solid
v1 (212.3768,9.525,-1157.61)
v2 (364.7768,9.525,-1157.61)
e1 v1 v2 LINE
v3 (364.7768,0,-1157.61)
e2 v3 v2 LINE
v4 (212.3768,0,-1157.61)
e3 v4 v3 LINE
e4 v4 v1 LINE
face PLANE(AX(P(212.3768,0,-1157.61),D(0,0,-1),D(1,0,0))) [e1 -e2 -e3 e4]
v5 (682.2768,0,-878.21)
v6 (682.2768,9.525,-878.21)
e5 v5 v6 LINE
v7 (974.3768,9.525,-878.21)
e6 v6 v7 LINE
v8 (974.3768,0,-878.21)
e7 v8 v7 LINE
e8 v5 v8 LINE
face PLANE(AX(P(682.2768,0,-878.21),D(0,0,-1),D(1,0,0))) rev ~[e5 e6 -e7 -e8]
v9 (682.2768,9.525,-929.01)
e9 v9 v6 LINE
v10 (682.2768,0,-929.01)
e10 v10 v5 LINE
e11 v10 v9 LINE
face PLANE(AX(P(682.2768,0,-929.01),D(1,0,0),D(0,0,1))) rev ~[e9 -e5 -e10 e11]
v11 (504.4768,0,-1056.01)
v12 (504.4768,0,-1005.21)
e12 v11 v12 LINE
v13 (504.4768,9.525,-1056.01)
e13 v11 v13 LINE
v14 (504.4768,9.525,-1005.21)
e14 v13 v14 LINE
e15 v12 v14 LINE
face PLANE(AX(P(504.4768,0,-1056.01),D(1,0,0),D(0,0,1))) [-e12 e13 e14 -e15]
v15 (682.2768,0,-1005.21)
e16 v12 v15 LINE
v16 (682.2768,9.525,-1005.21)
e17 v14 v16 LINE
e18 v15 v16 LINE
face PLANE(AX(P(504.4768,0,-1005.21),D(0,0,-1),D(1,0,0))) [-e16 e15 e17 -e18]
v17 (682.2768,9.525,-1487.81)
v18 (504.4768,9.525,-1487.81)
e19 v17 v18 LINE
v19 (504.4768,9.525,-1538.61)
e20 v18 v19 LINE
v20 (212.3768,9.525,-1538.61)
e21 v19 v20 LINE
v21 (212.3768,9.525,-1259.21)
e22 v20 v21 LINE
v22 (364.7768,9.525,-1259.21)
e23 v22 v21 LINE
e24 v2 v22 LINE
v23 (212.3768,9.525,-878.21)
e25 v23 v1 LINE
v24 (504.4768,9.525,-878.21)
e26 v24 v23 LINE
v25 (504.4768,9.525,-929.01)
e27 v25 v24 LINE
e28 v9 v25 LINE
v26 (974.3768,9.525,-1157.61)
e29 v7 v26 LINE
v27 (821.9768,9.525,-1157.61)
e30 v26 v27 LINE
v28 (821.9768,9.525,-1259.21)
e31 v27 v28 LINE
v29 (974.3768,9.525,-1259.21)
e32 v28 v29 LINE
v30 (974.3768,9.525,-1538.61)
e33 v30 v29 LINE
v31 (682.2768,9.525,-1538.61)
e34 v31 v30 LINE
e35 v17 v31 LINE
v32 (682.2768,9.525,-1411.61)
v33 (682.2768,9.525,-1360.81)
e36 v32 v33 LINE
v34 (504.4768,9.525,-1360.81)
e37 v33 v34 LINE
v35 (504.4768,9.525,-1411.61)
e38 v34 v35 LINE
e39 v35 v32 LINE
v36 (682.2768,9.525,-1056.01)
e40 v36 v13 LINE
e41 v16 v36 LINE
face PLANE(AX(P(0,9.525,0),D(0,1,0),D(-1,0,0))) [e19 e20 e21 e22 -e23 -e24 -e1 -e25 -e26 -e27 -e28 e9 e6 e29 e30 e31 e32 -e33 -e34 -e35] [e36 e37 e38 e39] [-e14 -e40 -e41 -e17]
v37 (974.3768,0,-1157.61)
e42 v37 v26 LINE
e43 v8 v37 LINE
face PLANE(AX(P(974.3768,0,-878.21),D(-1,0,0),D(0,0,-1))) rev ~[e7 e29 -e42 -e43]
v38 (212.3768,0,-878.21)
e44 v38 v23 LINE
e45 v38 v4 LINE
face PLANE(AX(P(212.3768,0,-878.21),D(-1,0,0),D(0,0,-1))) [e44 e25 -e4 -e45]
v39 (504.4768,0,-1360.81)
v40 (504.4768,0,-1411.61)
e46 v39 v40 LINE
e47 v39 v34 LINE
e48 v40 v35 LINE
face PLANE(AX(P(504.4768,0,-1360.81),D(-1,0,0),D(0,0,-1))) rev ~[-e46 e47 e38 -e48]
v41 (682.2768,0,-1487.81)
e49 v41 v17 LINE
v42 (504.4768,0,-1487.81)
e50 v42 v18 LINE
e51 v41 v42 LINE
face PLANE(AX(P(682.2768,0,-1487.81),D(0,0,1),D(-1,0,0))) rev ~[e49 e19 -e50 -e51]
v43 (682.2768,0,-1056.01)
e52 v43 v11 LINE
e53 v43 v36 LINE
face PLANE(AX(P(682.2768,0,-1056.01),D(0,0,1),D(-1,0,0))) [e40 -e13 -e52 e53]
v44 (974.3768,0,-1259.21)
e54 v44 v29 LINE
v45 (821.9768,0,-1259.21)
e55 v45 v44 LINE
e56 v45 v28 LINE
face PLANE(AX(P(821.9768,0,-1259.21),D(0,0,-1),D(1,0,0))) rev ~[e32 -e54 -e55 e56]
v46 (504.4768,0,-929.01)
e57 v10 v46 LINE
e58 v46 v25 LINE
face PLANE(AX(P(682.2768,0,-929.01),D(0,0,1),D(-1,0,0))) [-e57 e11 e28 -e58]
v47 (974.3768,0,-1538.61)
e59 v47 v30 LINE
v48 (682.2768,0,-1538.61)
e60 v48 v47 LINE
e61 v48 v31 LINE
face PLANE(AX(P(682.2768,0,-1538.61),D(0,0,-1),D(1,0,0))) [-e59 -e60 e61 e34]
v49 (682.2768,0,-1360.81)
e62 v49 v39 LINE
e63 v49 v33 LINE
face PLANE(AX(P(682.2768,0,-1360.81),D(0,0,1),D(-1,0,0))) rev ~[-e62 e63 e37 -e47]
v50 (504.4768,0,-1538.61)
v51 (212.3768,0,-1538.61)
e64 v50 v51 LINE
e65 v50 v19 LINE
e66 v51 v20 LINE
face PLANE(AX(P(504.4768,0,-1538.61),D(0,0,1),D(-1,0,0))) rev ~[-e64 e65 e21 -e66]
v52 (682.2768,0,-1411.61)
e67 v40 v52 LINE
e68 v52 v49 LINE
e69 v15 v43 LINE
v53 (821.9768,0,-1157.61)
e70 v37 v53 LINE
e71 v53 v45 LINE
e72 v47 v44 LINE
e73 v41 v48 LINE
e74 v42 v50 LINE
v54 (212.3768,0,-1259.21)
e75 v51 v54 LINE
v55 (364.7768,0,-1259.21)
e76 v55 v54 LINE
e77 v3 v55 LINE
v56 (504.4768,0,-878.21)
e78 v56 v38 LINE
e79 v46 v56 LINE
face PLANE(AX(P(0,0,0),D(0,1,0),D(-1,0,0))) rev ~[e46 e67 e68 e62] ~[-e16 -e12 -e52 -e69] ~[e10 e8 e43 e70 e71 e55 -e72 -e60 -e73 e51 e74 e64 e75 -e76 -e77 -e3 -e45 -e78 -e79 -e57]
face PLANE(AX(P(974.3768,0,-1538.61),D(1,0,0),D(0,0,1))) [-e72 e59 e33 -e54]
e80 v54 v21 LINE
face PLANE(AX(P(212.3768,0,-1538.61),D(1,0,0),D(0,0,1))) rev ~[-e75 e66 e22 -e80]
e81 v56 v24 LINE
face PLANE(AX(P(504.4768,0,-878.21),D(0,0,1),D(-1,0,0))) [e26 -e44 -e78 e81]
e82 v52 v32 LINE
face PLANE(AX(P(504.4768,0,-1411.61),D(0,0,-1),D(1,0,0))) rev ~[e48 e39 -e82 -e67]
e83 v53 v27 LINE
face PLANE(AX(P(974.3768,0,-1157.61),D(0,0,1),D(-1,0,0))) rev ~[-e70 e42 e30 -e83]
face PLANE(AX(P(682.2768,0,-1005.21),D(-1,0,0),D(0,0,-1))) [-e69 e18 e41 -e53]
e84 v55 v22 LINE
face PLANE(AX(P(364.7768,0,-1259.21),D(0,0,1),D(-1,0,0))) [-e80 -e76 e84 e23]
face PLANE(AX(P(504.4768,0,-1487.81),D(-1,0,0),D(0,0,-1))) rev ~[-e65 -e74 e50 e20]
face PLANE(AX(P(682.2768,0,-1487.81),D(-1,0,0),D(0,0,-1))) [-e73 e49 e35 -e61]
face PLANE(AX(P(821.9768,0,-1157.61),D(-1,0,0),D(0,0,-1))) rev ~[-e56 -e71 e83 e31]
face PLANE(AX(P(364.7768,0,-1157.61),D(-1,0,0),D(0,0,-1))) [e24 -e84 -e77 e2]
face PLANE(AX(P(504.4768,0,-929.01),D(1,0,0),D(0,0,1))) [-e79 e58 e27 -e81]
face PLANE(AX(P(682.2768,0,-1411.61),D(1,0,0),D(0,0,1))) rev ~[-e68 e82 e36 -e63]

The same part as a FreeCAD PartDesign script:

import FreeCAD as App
import Part
import Sketcher
from FreeCAD import Vector
Q = App.Units.Quantity

doc = App.newDocument("Part")
body = doc.addObject("PartDesign::Body", "Body")

sketch1 = body.newObject("Sketcher::SketchObject", "Sketch")
sketch1.AttachmentSupport = (doc.getObject("XZ_Plane"), [""])
sketch1.MapMode = "FlatFace"
sketch1.addGeometry([
    Part.LineSegment(Vector(365, -1158, 0), Vector(212, -1158, 0)),
    Part.LineSegment(Vector(212, -1158, 0), Vector(212, -878, 0)),
    Part.LineSegment(Vector(212, -878, 0), Vector(504, -878, 0)),
    Part.LineSegment(Vector(504, -878, 0), Vector(504, -929, 0)),
    Part.LineSegment(Vector(504, -929, 0), Vector(682, -929, 0)),
    Part.LineSegment(Vector(682, -929, 0), Vector(682, -878, 0)),
    Part.LineSegment(Vector(682, -878, 0), Vector(974, -878, 0)),
    Part.LineSegment(Vector(974, -878, 0), Vector(974, -1158, 0)),
    Part.LineSegment(Vector(974, -1158, 0), Vector(822, -1158, 0)),
    Part.LineSegment(Vector(822, -1158, 0), Vector(822, -1259, 0)),
    Part.LineSegment(Vector(822, -1259, 0), Vector(974, -1259, 0)),
    Part.LineSegment(Vector(974, -1259, 0), Vector(974, -1539, 0)),
    Part.LineSegment(Vector(974, -1539, 0), Vector(682, -1539, 0)),
    Part.LineSegment(Vector(682, -1539, 0), Vector(682, -1488, 0)),
    Part.LineSegment(Vector(682, -1488, 0), Vector(504, -1488, 0)),
    Part.LineSegment(Vector(504, -1488, 0), Vector(504, -1539, 0)),
    Part.LineSegment(Vector(504, -1539, 0), Vector(212, -1539, 0)),
    Part.LineSegment(Vector(212, -1539, 0), Vector(212, -1259, 0)),
    Part.LineSegment(Vector(212, -1259, 0), Vector(365, -1259, 0)),
    Part.LineSegment(Vector(365, -1259, 0), Vector(365, -1158, 0)),
    Part.LineSegment(Vector(504, -1361, 0), Vector(504, -1412, 0)),
    Part.LineSegment(Vector(504, -1412, 0), Vector(682, -1412, 0)),
    Part.LineSegment(Vector(682, -1412, 0), Vector(682, -1361, 0)),
    Part.LineSegment(Vector(682, -1361, 0), Vector(504, -1361, 0)),
    Part.LineSegment(Vector(682, -1005, 0), Vector(504, -1005, 0)),
    Part.LineSegment(Vector(504, -1005, 0), Vector(504, -1056, 0)),
    Part.LineSegment(Vector(504, -1056, 0), Vector(682, -1056, 0)),
    Part.LineSegment(Vector(682, -1056, 0), Vector(682, -1005, 0)),
], False)
sketch1.addConstraint([
    Sketcher.Constraint("Coincident", 0, 2, 1, 1),
    Sketcher.Constraint("Coincident", 1, 2, 2, 1),
    Sketcher.Constraint("Coincident", 2, 2, 3, 1),
    Sketcher.Constraint("Coincident", 3, 2, 4, 1),
    Sketcher.Constraint("Coincident", 4, 2, 5, 1),
    Sketcher.Constraint("Coincident", 5, 2, 6, 1),
    Sketcher.Constraint("Coincident", 6, 2, 7, 1),
    Sketcher.Constraint("Coincident", 7, 2, 8, 1),
    Sketcher.Constraint("Coincident", 8, 2, 9, 1),
    Sketcher.Constraint("Coincident", 9, 2, 10, 1),
    Sketcher.Constraint("Coincident", 10, 2, 11, 1),
    Sketcher.Constraint("Coincident", 11, 2, 12, 1),
    Sketcher.Constraint("Coincident", 12, 2, 13, 1),
    Sketcher.Constraint("Coincident", 13, 2, 14, 1),
    Sketcher.Constraint("Coincident", 14, 2, 15, 1),
    Sketcher.Constraint("Coincident", 15, 2, 16, 1),
    Sketcher.Constraint("Coincident", 16, 2, 17, 1),
    Sketcher.Constraint("Coincident", 17, 2, 18, 1),
    Sketcher.Constraint("Coincident", 18, 2, 19, 1),
    Sketcher.Constraint("Coincident", 19, 2, 0, 1),
    Sketcher.Constraint("Coincident", 20, 2, 21, 1),
    Sketcher.Constraint("Coincident", 21, 2, 22, 1),
    Sketcher.Constraint("Coincident", 22, 2, 23, 1),
    Sketcher.Constraint("Coincident", 23, 2, 20, 1),
    Sketcher.Constraint("Coincident", 24, 2, 25, 1),
    Sketcher.Constraint("Coincident", 25, 2, 26, 1),
    Sketcher.Constraint("Coincident", 26, 2, 27, 1),
    Sketcher.Constraint("Coincident", 27, 2, 24, 1),
    Sketcher.Constraint("Horizontal", 0),
    Sketcher.Constraint("Vertical", 1),
    Sketcher.Constraint("Horizontal", 2),
    Sketcher.Constraint("Vertical", 3),
    Sketcher.Constraint("Horizontal", 4),
    Sketcher.Constraint("Vertical", 5),
    Sketcher.Constraint("Horizontal", 6),
    Sketcher.Constraint("Vertical", 7),
    Sketcher.Constraint("Horizontal", 8),
    Sketcher.Constraint("Vertical", 9),
    Sketcher.Constraint("Horizontal", 10),
    Sketcher.Constraint("Vertical", 11),
    Sketcher.Constraint("Horizontal", 12),
    Sketcher.Constraint("Vertical", 13),
    Sketcher.Constraint("Horizontal", 14),
    Sketcher.Constraint("Vertical", 15),
    Sketcher.Constraint("Horizontal", 16),
    Sketcher.Constraint("Vertical", 17),
    Sketcher.Constraint("Horizontal", 18),
    Sketcher.Constraint("Vertical", 19),
    Sketcher.Constraint("Vertical", 20),
    Sketcher.Constraint("Horizontal", 21),
    Sketcher.Constraint("Vertical", 22),
    Sketcher.Constraint("Horizontal", 23),
    Sketcher.Constraint("Horizontal", 24),
    Sketcher.Constraint("Vertical", 25),
    Sketcher.Constraint("Horizontal", 26),
    Sketcher.Constraint("Vertical", 27),
    Sketcher.Constraint("Horizontal", 2, 2, 5, 2),
    Sketcher.Constraint("Horizontal", 0, 2, 7, 2),
    Sketcher.Constraint("Horizontal", 12, 2, 15, 2),
    Sketcher.Constraint("Horizontal", 10, 2, 17, 2),
    Sketcher.Constraint("Vertical", 7, 2, 10, 2),
    Sketcher.Constraint("Vertical", 5, 2, 12, 2),
    Sketcher.Constraint("Vertical", 3, 2, 14, 2),
    Sketcher.Constraint("Vertical", 1, 2, 16, 2),
    Sketcher.Constraint("Vertical", 15, 2, 20, 2),
    Sketcher.Constraint("Vertical", 13, 2, 21, 2),
    Sketcher.Constraint("Vertical", 23, 2, 24, 2),
    Sketcher.Constraint("Vertical", 22, 2, 26, 2),
    Sketcher.Constraint("Equal", 2, 6),
    Sketcher.Constraint("Equal", 0, 8),
    Sketcher.Constraint("Equal", 7, 11),
    Sketcher.Constraint("Equal", 5, 13),
    Sketcher.Constraint("Equal", 15, 20),
    Sketcher.Constraint("Equal", 22, 25),
    Sketcher.Constraint("DistanceX", 0, 2, 0, 1, Q("6 in")),
    Sketcher.Constraint("DistanceX", 4, 1, 4, 2, Q("7 in")),
    Sketcher.Constraint("DistanceY", 3, 2, 3, 1, Q("2 in")),
    Sketcher.Constraint("DistanceY", 9, 2, 9, 1, Q("4 in")),
    Sketcher.Constraint("DistanceY", 14, 2, 20, 2, Q("3 in")),
    Sketcher.Constraint("DistanceY", 20, 2, 18, 2, Q("6 in")),
    Sketcher.Constraint("DistanceY", 24, 2, 3, 2, Q("3 in")),
    Sketcher.Constraint("DistanceX", 2, 1, 2, 2, Q("11.5 in")),
    Sketcher.Constraint("DistanceX", -1, 1, 0, 2, Q("8.3613 in")),
    Sketcher.Constraint("DistanceY", 0, 2, -1, 1, Q("45.5752 in")),
])
pad1 = body.newObject("PartDesign::Pad", "Pad")
pad1.Profile = sketch1
pad1.Length = Q("0.375 in")
pad1.Reversed = True

doc.recompute()
